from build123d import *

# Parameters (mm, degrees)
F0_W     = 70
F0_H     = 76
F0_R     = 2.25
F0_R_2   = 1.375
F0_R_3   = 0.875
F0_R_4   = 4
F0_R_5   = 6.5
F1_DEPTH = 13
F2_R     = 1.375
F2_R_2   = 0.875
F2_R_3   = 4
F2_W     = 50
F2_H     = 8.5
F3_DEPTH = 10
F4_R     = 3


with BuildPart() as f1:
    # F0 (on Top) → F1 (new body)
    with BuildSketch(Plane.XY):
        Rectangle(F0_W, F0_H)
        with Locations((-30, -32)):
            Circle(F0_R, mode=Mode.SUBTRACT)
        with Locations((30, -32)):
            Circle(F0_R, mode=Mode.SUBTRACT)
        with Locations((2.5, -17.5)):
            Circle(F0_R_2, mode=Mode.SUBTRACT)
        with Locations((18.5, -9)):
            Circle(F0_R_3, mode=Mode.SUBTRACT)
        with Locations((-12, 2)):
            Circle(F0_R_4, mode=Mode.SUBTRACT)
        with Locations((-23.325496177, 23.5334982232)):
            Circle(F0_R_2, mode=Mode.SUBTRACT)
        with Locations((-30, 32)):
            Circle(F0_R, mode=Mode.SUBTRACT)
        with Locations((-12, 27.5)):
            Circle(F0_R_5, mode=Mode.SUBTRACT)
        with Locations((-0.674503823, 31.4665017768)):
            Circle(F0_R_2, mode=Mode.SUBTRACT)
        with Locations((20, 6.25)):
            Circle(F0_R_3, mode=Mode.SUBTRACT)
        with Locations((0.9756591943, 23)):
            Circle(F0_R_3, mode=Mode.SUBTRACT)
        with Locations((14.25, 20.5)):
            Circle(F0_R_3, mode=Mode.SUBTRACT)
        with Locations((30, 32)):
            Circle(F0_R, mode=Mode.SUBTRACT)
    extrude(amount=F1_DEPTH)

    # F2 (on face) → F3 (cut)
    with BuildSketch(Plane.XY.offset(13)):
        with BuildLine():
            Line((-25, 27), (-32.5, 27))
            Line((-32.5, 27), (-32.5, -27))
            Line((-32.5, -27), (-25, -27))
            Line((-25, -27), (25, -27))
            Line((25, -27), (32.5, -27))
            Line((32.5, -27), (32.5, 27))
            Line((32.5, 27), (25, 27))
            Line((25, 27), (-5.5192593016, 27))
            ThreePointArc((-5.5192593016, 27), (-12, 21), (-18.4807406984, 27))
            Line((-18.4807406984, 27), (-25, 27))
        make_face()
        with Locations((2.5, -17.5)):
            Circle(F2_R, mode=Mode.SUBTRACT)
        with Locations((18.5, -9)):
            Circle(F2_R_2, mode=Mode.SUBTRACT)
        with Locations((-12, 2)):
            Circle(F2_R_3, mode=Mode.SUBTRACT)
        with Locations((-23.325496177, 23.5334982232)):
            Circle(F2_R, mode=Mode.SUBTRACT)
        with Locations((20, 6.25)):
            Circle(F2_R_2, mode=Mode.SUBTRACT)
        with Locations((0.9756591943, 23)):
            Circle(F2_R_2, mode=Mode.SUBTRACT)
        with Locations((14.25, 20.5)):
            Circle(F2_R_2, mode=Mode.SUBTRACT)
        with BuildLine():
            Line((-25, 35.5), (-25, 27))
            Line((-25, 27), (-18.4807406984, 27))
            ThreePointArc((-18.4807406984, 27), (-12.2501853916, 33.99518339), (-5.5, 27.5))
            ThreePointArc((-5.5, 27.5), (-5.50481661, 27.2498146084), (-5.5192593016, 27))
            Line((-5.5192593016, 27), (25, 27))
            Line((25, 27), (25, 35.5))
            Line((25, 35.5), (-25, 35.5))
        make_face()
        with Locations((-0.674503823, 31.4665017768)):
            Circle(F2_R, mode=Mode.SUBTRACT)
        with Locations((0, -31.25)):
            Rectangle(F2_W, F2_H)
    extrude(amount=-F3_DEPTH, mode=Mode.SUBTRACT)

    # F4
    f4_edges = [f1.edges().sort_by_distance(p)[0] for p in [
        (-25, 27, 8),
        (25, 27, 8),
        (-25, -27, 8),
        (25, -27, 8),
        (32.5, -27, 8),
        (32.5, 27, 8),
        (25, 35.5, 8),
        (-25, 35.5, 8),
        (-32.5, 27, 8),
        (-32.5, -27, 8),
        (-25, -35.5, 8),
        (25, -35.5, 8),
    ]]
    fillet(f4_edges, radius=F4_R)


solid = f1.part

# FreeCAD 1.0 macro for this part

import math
import FreeCAD as App
import Part
import Sketcher
from FreeCAD import Vector
Q = App.Units.Quantity


def edges_at(feature, points):
    """Names of the edges that pass closest to the given points."""
    edges = feature.Shape.Edges
    near = lambda p: min(range(len(edges)), key=lambda i: edges[i].distToShape(Part.Vertex(*p))[0])
    return sorted({f"Edge{near(p) + 1}" for p in points})


def add_polygon(sketch, points):
    """Adds a closed chain of lines whose ends are joined by coincident constraints."""
    first, n = sketch.GeometryCount, len(points)
    for a, b in zip(points, points[1:] + points[:1]):
        sketch.addGeometry(Part.LineSegment(App.Vector(*a, 0), App.Vector(*b, 0)), False)
    for i in range(n):
        sketch.addConstraint(Sketcher.Constraint("Coincident", first + i, 2, first + (i + 1) % n, 1))

doc = App.newDocument("Part")
params = doc.addObject("Spreadsheet::Sheet", "Params")
for row, (alias, value) in enumerate([
    ("sketch1_diameter", "8 mm"),
    ("sketch1_diameter2", "13 mm"),
    ("sketch1_diameter3", "4.5 mm"),
    ("sketch1_diameter4", "2.75 mm"),
    ("sketch1_diameter5", "1.75 mm"),
    ("pad1_length", "13 mm"),
    ("sketch2_diameter", "8 mm"),
    ("sketch2_radius", "6.5 mm"),
    ("sketch2_diameter2", "2.75 mm"),
    ("sketch2_diameter3", "1.75 mm"),
    ("sketch2_width", "50 mm"),
    ("pocket1_length", "10 mm"),
    ("fillet_radius", "3 mm"),
], start=1):
    params.set(f"A{row}", alias)
    params.set(f"B{row}", "=" + value)
    params.setAlias(f"B{row}", alias)

body = doc.addObject("PartDesign::Body", "Body")

# Sketch on XY plane
sketch1 = doc.addObject("Sketcher::SketchObject", "Sketch")
body.addObject(sketch1)
sketch1.AttachmentSupport = (doc.XY_Plane, [""])
sketch1.MapMode = "FlatFace"
add_polygon(sketch1, [(-35, 38), (-35, -38), (35, -38), (35, 38)])  # lines 0-3
sketch1.addGeometry(Part.Circle(Vector(-30, -32, 0), Vector(0, 0, 1), 2.2), False)  # 4
sketch1.addGeometry(Part.Circle(Vector(2.5, -17.5, 0), Vector(0, 0, 1), 1.4), False)  # 5
sketch1.addGeometry(Part.Circle(Vector(30, -32, 0), Vector(0, 0, 1), 2.2), False)  # 6
sketch1.addGeometry(Part.Circle(Vector(18.5, -9, 0), Vector(0, 0, 1), 0.9), False)  # 7
sketch1.addGeometry(Part.Circle(Vector(-12, 2, 0), Vector(0, 0, 1), 4), False)  # 8
sketch1.addGeometry(Part.Circle(Vector(-23.3, 23.5, 0), Vector(0, 0, 1), 1.4), False)  # 9
sketch1.addGeometry(Part.Circle(Vector(-30, 32, 0), Vector(0, 0, 1), 2.2), False)  # 10
sketch1.addGeometry(Part.Circle(Vector(-12, 27.5, 0), Vector(0, 0, 1), 6.5), False)  # 11
sketch1.addGeometry(Part.Circle(Vector(-0.7, 31.5, 0), Vector(0, 0, 1), 1.4), False)  # 12
sketch1.addGeometry(Part.Circle(Vector(20, 6.2, 0), Vector(0, 0, 1), 0.9), False)  # 13
sketch1.addGeometry(Part.Circle(Vector(1, 23, 0), Vector(0, 0, 1), 0.9), False)  # 14
sketch1.addGeometry(Part.Circle(Vector(14.2, 20.5, 0), Vector(0, 0, 1), 0.9), False)  # 15
sketch1.addGeometry(Part.Circle(Vector(30, 32, 0), Vector(0, 0, 1), 2.2), False)  # 16
sketch1.addConstraint(Sketcher.Constraint("Vertical", 0))
sketch1.addConstraint(Sketcher.Constraint("Horizontal", 1))
sketch1.addConstraint(Sketcher.Constraint("Vertical", 2))
sketch1.addConstraint(Sketcher.Constraint("Horizontal", 3))
sketch1.addConstraint(Sketcher.Constraint("Equal", 4, 6))
sketch1.addConstraint(Sketcher.Constraint("Equal", 5, 9))
sketch1.addConstraint(Sketcher.Constraint("Equal", 6, 10))
sketch1.addConstraint(Sketcher.Constraint("Equal", 9, 12))
sketch1.addConstraint(Sketcher.Constraint("Equal", 7, 13))
sketch1.addConstraint(Sketcher.Constraint("Equal", 13, 14))
sketch1.addConstraint(Sketcher.Constraint("Equal", 14, 15))
sketch1.addConstraint(Sketcher.Constraint("Equal", 10, 16))
sketch1.addConstraint(Sketcher.Constraint("Symmetric", 6, 3, 10, 3, -1, 1))
sketch1.addConstraint(Sketcher.Constraint("Symmetric", 4, 3, 16, 3, -1, 1))
sketch1.addConstraint(Sketcher.Constraint("Symmetric", 0, 2, 2, 2, -1, 1))
sketch1.addConstraint(Sketcher.Constraint("Symmetric", 4, 3, 6, 3, -2))
sketch1.addConstraint(Sketcher.Constraint("Vertical", 8, 3, 11, 3))
sketch1.addConstraint(Sketcher.Constraint("Diameter", 8, Q("8 mm")))
sketch1.addConstraint(Sketcher.Constraint("Diameter", 11, Q("13 mm")))
sketch1.addConstraint(Sketcher.Constraint("Diameter", 4, Q("4.5 mm")))
sketch1.addConstraint(Sketcher.Constraint("Diameter", 5, Q("2.75 mm")))
sketch1.addConstraint(Sketcher.Constraint("Diameter", 7, Q("1.75 mm")))
sketch1.addConstraint(Sketcher.Constraint("DistanceX", 1, 1, 1, 2, Q("70 mm")))
sketch1.addConstraint(Sketcher.Constraint("DistanceY", 0, 2, 0, 1, Q("76 mm")))
sketch1.addConstraint(Sketcher.Constraint("DistanceX", 4, 3, -1, 1, Q("30 mm")))
sketch1.addConstraint(Sketcher.Constraint("DistanceY", 4, 3, -1, 1, Q("32 mm")))
sketch1.addConstraint(Sketcher.Constraint("DistanceY", 7, 3, -1, 1, Q("9 mm")))
sketch1.addConstraint(Sketcher.Constraint("DistanceX", 8, 3, -1, 1, Q("12 mm")))
sketch1.addConstraint(Sketcher.Constraint("DistanceY", -1, 1, 8, 3, Q("2 mm")))
sketch1.addConstraint(Sketcher.Constraint("DistanceX", -1, 1, 13, 3, Q("20 mm")))
sketch1.addConstraint(Sketcher.Constraint("DistanceY", -1, 1, 14, 3, Q("23 mm")))
sketch1.addConstraint(Sketcher.Constraint("DistanceX", 5, 3, 7, 3, Q("16 mm")))
sketch1.addConstraint(Sketcher.Constraint("DistanceY", 5, 3, 11, 3, Q("45 mm")))
sketch1.addConstraint(Sketcher.Constraint("DistanceY", 15, 3, 11, 3, Q("7 mm")))
sketch1.addConstraint(Sketcher.Constraint("DistanceX", -1, 1, 5, 3, Q("2.5 mm")))
sketch1.addConstraint(Sketcher.Constraint("DistanceY", 5, 3, -1, 1, Q("17.5 mm")))
sketch1.addConstraint(Sketcher.Constraint("DistanceY", -1, 1, 13, 3, Q("6.25 mm")))
sketch1.addConstraint(Sketcher.Constraint("DistanceX", -1, 1, 15, 3, Q("14.25 mm")))
sketch1.addConstraint(Sketcher.Constraint("DistanceY", -1, 1, 9, 3, Q("23.533498 mm")))
sketch1.addConstraint(Sketcher.Constraint("DistanceY", -1, 1, 12, 3, Q("31.466502 mm")))
sketch1.addConstraint(Sketcher.Constraint("DistanceX", -1, 1, 14, 3, Q("0.975659 mm")))
sketch1.addConstraint(Sketcher.Constraint("DistanceX", 9, 3, -1, 1, Q("23.325496 mm")))
sketch1.addConstraint(Sketcher.Constraint("DistanceX", 12, 3, -1, 1, Q("0.674504 mm")))
sketch1.setExpression("Constraints[21]", "Params.sketch1_diameter")
sketch1.setExpression("Constraints[22]", "Params.sketch1_diameter2")
sketch1.setExpression("Constraints[23]", "Params.sketch1_diameter3")
sketch1.setExpression("Constraints[24]", "Params.sketch1_diameter4")
sketch1.setExpression("Constraints[25]", "Params.sketch1_diameter5")
pad1 = doc.addObject("PartDesign::Pad", "Pad")
body.addObject(pad1)
pad1.Profile = sketch1
pad1.setExpression("Length", "Params.pad1_length")

# Sketch on XY plane
sketch2 = doc.addObject("Sketcher::SketchObject", "Sketch001")
body.addObject(sketch2)
sketch2.AttachmentSupport = (doc.XY_Plane, [""])
sketch2.MapMode = "FlatFace"
sketch2.AttachmentOffset = App.Placement(Vector(0, 0, 13), App.Rotation())
add_polygon(sketch2, [(-32.5, 27), (-32.5, -27), (-25, -27), (-25, -35.5), (25, -35.5), (25, -27), (32.5, -27), (32.5, 27), (25, 27), (25, 35.5), (-25, 35.5), (-25, 27)])  # lines 0-11
sketch2.addGeometry(Part.Circle(Vector(-12, 2, 0), Vector(0, 0, 1), 4), False)  # 12
sketch2.addGeometry(Part.Circle(Vector(2.5, -17.5, 0), Vector(0, 0, 1), 1.4), False)  # 13
sketch2.addGeometry(Part.Circle(Vector(18.5, -9, 0), Vector(0, 0, 1), 0.9), False)  # 14
sketch2.addGeometry(Part.Circle(Vector(20, 6.2, 0), Vector(0, 0, 1), 0.9), False)  # 15
sketch2.addGeometry(Part.Circle(Vector(-23.3, 23.5, 0), Vector(0, 0, 1), 1.4), False)  # 16
sketch2.addGeometry(Part.ArcOfCircle(Part.Circle(Vector(-12, 27.5, 0), Vector(0, 0, 1), 6.5), math.radians(0), math.radians(356)), False)  # 17
sketch2.addGeometry(Part.ArcOfCircle(Part.Circle(Vector(-12, 27.5, 0), Vector(0, 0, 1), 6.5), math.radians(-4.41), math.radians(0)), False)  # 18
sketch2.addGeometry(Part.Circle(Vector(14.2, 20.5, 0), Vector(0, 0, 1), 0.9), False)  # 19
sketch2.addGeometry(Part.Circle(Vector(1, 23, 0), Vector(0, 0, 1), 0.9), False)  # 20
sketch2.addGeometry(Part.Circle(Vector(-0.7, 31.5, 0), Vector(0, 0, 1), 1.4), False)  # 21
sketch2.addConstraint(Sketcher.Constraint("Tangent", 17, 1, 18, 2))
sketch2.addConstraint(Sketcher.Constraint("Coincident", 18, 1, 17, 2))
sketch2.addConstraint(Sketcher.Constraint("Vertical", 0))
sketch2.addConstraint(Sketcher.Constraint("Horizontal", 1))
sketch2.addConstraint(Sketcher.Constraint("Vertical", 2))
sketch2.addConstraint(Sketcher.Constraint("Horizontal", 3))
sketch2.addConstraint(Sketcher.Constraint("Vertical", 4))
sketch2.addConstraint(Sketcher.Constraint("Horizontal", 5))
sketch2.addConstraint(Sketcher.Constraint("Vertical", 6))
sketch2.addConstraint(Sketcher.Constraint("Horizontal", 7))
sketch2.addConstraint(Sketcher.Constraint("Vertical", 8))
sketch2.addConstraint(Sketcher.Constraint("Horizontal", 9))
sketch2.addConstraint(Sketcher.Constraint("Vertical", 10))
sketch2.addConstraint(Sketcher.Constraint("Horizontal", 11))
sketch2.addConstraint(Sketcher.Constraint("Equal", 14, 15))
sketch2.addConstraint(Sketcher.Constraint("Equal", 13, 16))
sketch2.addConstraint(Sketcher.Constraint("Equal", 15, 19))
sketch2.addConstraint(Sketcher.Constraint("Equal", 19, 20))
sketch2.addConstraint(Sketcher.Constraint("Equal", 16, 21))
sketch2.addConstraint(Sketcher.Constraint("Symmetric", 0, 2, 6, 2, -1, 1))
sketch2.addConstraint(Sketcher.Constraint("Symmetric", 2, 2, 8, 2, -1, 1))
sketch2.addConstraint(Sketcher.Constraint("Symmetric", 4, 2, 10, 2, -1, 1))
sketch2.addConstraint(Sketcher.Constraint("Symmetric", 1, 2, 4, 2, -2))
sketch2.addConstraint(Sketcher.Constraint("Horizontal", 18, 3, 17, 1))
sketch2.addConstraint(Sketcher.Constraint("Horizontal", 11, 2, 18, 1))
sketch2.addConstraint(Sketcher.Constraint("Vertical", 12, 3, 17, 3))
sketch2.addConstraint(Sketcher.Constraint("Diameter", 12, Q("8 mm")))
sketch2.addConstraint(Sketcher.Constraint("Radius", 17, Q("6.5 mm")))
sketch2.addConstraint(Sketcher.Constraint("Diameter", 13, Q("2.75 mm")))
sketch2.addConstraint(Sketcher.Constraint("Diameter", 14, Q("1.75 mm")))
sketch2.addConstraint(Sketcher.Constraint("DistanceX", 3, 1, 3, 2, Q("50 mm")))
sketch2.addConstraint(Sketcher.Constraint("DistanceY", 0, 2, 0, 1, Q("54 mm")))
sketch2.addConstraint(Sketcher.Constraint("DistanceX", 1, 1, 1, 2, Q("7.5 mm")))
sketch2.addConstraint(Sketcher.Constraint("DistanceY", 2, 2, 2, 1, Q("8.5 mm")))
sketch2.addConstraint(Sketcher.Constraint("DistanceX", 12, 3, -1, 1, Q("12 mm")))
sketch2.addConstraint(Sketcher.Constraint("DistanceY", -1, 1, 12, 3, Q("2 mm")))
sketch2.addConstraint(Sketcher.Constraint("DistanceY", 14, 3, -1, 1, Q("9 mm")))
sketch2.addConstraint(Sketcher.Constraint("DistanceX", -1, 1, 15, 3, Q("20 mm")))
sketch2.addConstraint(Sketcher.Constraint("DistanceY", -1, 1, 20, 3, Q("23 mm")))
sketch2.addConstraint(Sketcher.Constraint("DistanceX", 13, 3, 14, 3, Q("16 mm")))
sketch2.addConstraint(Sketcher.Constraint("DistanceY", 13, 3, 17, 3, Q("45 mm")))
sketch2.addConstraint(Sketcher.Constraint("DistanceY", 19, 3, 17, 3, Q("7 mm")))
sketch2.addConstraint(Sketcher.Constraint("DistanceX", 0, 2, 13, 3, Q("35 mm")))
sketch2.addConstraint(Sketcher.Constraint("DistanceY", 2, 2, 13, 3, Q("18 mm")))
sketch2.addConstraint(Sketcher.Constraint("DistanceY", -1, 1, 15, 3, Q("6.25 mm")))
sketch2.addConstraint(Sketcher.Constraint("DistanceX", -1, 1, 19, 3, Q("14.25 mm")))
sketch2.addConstraint(Sketcher.Constraint("DistanceY", -1, 1, 16, 3, Q("23.533498 mm")))
sketch2.addConstraint(Sketcher.Constraint("DistanceY", -1, 1, 21, 3, Q("31.466502 mm")))
sketch2.addConstraint(Sketcher.Constraint("DistanceX", -1, 1, 20, 3, Q("0.975659 mm")))
sketch2.addConstraint(Sketcher.Constraint("DistanceX", 16, 3, -1, 1, Q("23.325496 mm")))
sketch2.addConstraint(Sketcher.Constraint("DistanceX", 21, 3, -1, 1, Q("0.674504 mm")))
sketch2.setExpression("Constraints[38]", "Params.sketch2_diameter")
sketch2.setExpression("Constraints[39]", "Params.sketch2_radius")
sketch2.setExpression("Constraints[40]", "Params.sketch2_diameter2")
sketch2.setExpression("Constraints[41]", "Params.sketch2_diameter3")
sketch2.setExpression("Constraints[42]", "Params.sketch2_width")
pocket1 = doc.addObject("PartDesign::Pocket", "Pocket")
body.addObject(pocket1)
pocket1.Profile = sketch2
pocket1.setExpression("Length", "Params.pocket1_length")
doc.recompute()

fillet = doc.addObject("PartDesign::Fillet", "Fillet")
body.addObject(fillet)
fillet.Base = (pocket1, edges_at(pocket1, [
    (-25, 27, 8),
    (25, 27, 8),
    (-25, -27, 8),
    (25, -27, 8),
    (32.5, -27, 8),
    (32.5, 27, 8),
    (25, 35.5, 8),
    (-25, 35.5, 8),
    (-32.5, 27, 8),
    (-32.5, -27, 8),
    (-25, -35.5, 8),
    (25, -35.5, 8),
]))
fillet.setExpression("Radius", "Params.fillet_radius")

doc.recompute()
